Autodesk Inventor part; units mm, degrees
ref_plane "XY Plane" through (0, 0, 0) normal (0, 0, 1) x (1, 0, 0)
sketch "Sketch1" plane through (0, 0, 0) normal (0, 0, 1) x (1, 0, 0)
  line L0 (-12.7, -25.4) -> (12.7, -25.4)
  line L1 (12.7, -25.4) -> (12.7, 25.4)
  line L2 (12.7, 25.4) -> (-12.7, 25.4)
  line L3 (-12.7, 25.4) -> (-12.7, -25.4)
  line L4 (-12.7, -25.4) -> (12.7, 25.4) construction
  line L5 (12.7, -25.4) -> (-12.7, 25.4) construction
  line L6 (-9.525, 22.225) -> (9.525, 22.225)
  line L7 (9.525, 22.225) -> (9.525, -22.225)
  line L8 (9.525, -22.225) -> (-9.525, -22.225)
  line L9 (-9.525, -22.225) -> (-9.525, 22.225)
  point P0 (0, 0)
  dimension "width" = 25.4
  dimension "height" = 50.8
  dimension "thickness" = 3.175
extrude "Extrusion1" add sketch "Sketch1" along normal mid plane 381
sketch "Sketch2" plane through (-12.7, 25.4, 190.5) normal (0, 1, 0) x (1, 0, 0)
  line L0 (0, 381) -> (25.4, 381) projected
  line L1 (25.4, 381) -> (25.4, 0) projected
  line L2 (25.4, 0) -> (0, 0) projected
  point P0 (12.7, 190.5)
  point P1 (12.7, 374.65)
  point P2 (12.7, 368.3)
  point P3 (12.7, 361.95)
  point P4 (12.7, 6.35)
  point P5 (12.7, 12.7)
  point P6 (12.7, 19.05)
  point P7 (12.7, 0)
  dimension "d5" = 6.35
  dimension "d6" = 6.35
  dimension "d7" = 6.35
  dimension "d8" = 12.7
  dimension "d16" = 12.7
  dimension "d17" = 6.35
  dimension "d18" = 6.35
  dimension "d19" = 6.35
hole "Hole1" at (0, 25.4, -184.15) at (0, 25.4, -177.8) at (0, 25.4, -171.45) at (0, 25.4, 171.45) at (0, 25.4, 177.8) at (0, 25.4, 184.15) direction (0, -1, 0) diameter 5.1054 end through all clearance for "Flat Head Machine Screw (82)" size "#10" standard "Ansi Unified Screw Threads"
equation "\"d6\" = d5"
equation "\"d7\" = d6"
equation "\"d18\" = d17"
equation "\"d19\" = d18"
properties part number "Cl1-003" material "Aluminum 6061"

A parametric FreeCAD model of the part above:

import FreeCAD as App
import Part
import Sketcher
from FreeCAD import Vector
Q = App.Units.Quantity

doc = App.newDocument("Part")
body = doc.addObject("PartDesign::Body", "Body")

# Sketch on XY plane
sketch1 = doc.addObject("Sketcher::SketchObject", "Sketch")
body.addObject(sketch1)
sketch1.AttachmentSupport = (doc.XY_Plane, [""])
sketch1.MapMode = "FlatFace"
sketch1.addGeometry([
    Part.LineSegment(Vector(-12.7, 25.4, 0), Vector(-12.7, -25.4, 0)),  # 0
    Part.LineSegment(Vector(-12.7, -25.4, 0), Vector(12.7, -25.4, 0)),  # 1
    Part.LineSegment(Vector(12.7, -25.4, 0), Vector(12.7, 25.4, 0)),  # 2
    Part.LineSegment(Vector(12.7, 25.4, 0), Vector(-12.7, 25.4, 0)),  # 3
    Part.LineSegment(Vector(-9.525, -22.225, 0), Vector(-9.525, 22.225, 0)),  # 4
    Part.LineSegment(Vector(-9.525, 22.225, 0), Vector(9.525, 22.225, 0)),  # 5
    Part.LineSegment(Vector(9.525, 22.225, 0), Vector(9.525, -22.225, 0)),  # 6
    Part.LineSegment(Vector(9.525, -22.225, 0), Vector(-9.525, -22.225, 0)),  # 7
], False)
sketch1.addConstraint([
    Sketcher.Constraint("Coincident", 0, 2, 1, 1),
    Sketcher.Constraint("Coincident", 1, 2, 2, 1),
    Sketcher.Constraint("Coincident", 2, 2, 3, 1),
    Sketcher.Constraint("Coincident", 3, 2, 0, 1),
    Sketcher.Constraint("Coincident", 4, 2, 5, 1),
    Sketcher.Constraint("Coincident", 5, 2, 6, 1),
    Sketcher.Constraint("Coincident", 6, 2, 7, 1),
    Sketcher.Constraint("Coincident", 7, 2, 4, 1),
    Sketcher.Constraint("Vertical", 0),
    Sketcher.Constraint("Horizontal", 1),
    Sketcher.Constraint("Vertical", 2),
    Sketcher.Constraint("Horizontal", 3),
    Sketcher.Constraint("Vertical", 4),
    Sketcher.Constraint("Horizontal", 5),
    Sketcher.Constraint("Vertical", 6),
    Sketcher.Constraint("Horizontal", 7),
    Sketcher.Constraint("Symmetric", 0, 2, 2, 2, -1, 1),
    Sketcher.Constraint("Symmetric", 4, 2, 6, 2, -1, 1),
    Sketcher.Constraint("DistanceX", 1, 1, 1, 2, Q("1 in")),
    Sketcher.Constraint("DistanceY", 0, 2, 0, 1, Q("2 in")),
    Sketcher.Constraint("DistanceX", 3, 2, 4, 2, Q("0.125 in")),
    Sketcher.Constraint("DistanceY", 4, 2, 3, 2, Q("0.125 in")),
])
pad1 = doc.addObject("PartDesign::Pad", "Pad")
body.addObject(pad1)
pad1.Profile = sketch1
pad1.Length = Q("15 in")
pad1.Midplane = True

# Sketch on XZ plane
sketch2 = doc.addObject("Sketcher::SketchObject", "Sketch001")
body.addObject(sketch2)
sketch2.AttachmentSupport = (doc.XZ_Plane, [""])
sketch2.MapMode = "FlatFace"
sketch2.AttachmentOffset = App.Placement(Vector(0, 0, -1 * 25.4), App.Rotation())
sketch2.addGeometry([
    Part.Circle(Vector(0, -184.15, 0), Vector(0, 0, 1), 2.5527),  # 0
    Part.Circle(Vector(0, -177.8, 0), Vector(0, 0, 1), 2.5527),  # 1
    Part.Circle(Vector(0, -171.45, 0), Vector(0, 0, 1), 2.5527),  # 2
    Part.Circle(Vector(0, 171.45, 0), Vector(0, 0, 1), 2.5527),  # 3
    Part.Circle(Vector(0, 177.8, 0), Vector(0, 0, 1), 2.5527),  # 4
    Part.Circle(Vector(0, 184.15, 0), Vector(0, 0, 1), 2.5527),  # 5
], False)
sketch2.addConstraint([
    Sketcher.Constraint("Equal", 0, 1),
    Sketcher.Constraint("Equal", 1, 2),
    Sketcher.Constraint("Equal", 2, 3),
    Sketcher.Constraint("Equal", 3, 4),
    Sketcher.Constraint("Equal", 4, 5),
    Sketcher.Constraint("Symmetric", 2, 3, 3, 3, -1, 1),
    Sketcher.Constraint("Symmetric", 1, 3, 4, 3, -1, 1),
    Sketcher.Constraint("Symmetric", 0, 3, 5, 3, -1, 1),
    Sketcher.Constraint("PointOnObject", 0, 3, -2),
    Sketcher.Constraint("PointOnObject", 1, 3, -2),
    Sketcher.Constraint("PointOnObject", 2, 3, -2),
    Sketcher.Constraint("Diameter", 0, Q("0.201 in")),
    Sketcher.Constraint("DistanceY", 1, 3, -1, 1, Q("7 in")),
    Sketcher.Constraint("DistanceY", 0, 3, 3, 3, Q("14 in")),
    Sketcher.Constraint("DistanceY", 0, 3, 2, 3, Q("0.5 in")),
])
doc.recompute()
hole = doc.addObject("PartDesign::Hole", "Hole")
body.addObject(hole)
hole.Profile = sketch2
hole.ThreadType = "None"
hole.Diameter = Q("0.201 in")
hole.DepthType = "ThroughAll"
hole.Reversed = True

doc.recompute()
